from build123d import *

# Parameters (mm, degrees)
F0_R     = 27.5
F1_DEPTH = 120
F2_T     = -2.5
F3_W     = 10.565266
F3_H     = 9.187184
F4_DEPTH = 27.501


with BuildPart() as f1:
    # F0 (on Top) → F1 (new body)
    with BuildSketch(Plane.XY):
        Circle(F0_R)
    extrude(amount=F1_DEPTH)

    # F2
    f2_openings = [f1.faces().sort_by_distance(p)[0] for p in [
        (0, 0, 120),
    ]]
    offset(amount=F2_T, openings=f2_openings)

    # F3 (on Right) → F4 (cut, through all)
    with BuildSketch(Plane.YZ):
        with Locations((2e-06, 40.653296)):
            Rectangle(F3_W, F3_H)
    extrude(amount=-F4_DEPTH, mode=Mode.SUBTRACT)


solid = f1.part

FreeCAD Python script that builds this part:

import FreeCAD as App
import Part
import Sketcher

V = App.Vector


def faces_at(feature, points):
    """Names of the faces that lie closest to the given points."""
    faces = feature.Shape.Faces
    near = lambda p: min(range(len(faces)), key=lambda i: faces[i].distToShape(Part.Vertex(*p))[0])
    return sorted({f"Face{near(p) + 1}" for p in points})


def add_polygon(sketch, points):
    """Adds a closed chain of lines whose ends are joined by coincident constraints."""
    first, n = sketch.GeometryCount, len(points)
    for a, b in zip(points, points[1:] + points[:1]):
        sketch.addGeometry(Part.LineSegment(App.Vector(*a, 0), App.Vector(*b, 0)), False)
    for i in range(n):
        sketch.addConstraint(Sketcher.Constraint("Coincident", first + i, 2, first + (i + 1) % n, 1))

doc = App.newDocument("Part")
body = doc.addObject("PartDesign::Body", "Body")

# Sketch on XY plane
sketch1 = body.newObject("Sketcher::SketchObject", "Sketch")
sketch1.AttachmentSupport = (doc.getObject("XY_Plane"), [""])
sketch1.MapMode = "FlatFace"
sketch1.addGeometry(Part.Circle(V(0, 0, 0), V(0, 0, 1), 28), False)
sketch1.addConstraint([
    Sketcher.Constraint("Coincident", 0, 3, -1, 1),
    Sketcher.Constraint("Diameter", 0, 55.0),
])
pad1 = body.newObject("PartDesign::Pad", "Pad")
pad1.Profile = sketch1
pad1.Length = 120
doc.recompute()

thickness = body.newObject("PartDesign::Thickness", "Thickness")
thickness.Base = (pad1, faces_at(pad1, [(0, 0, 120)]))
thickness.Value = 2.5
thickness.Reversed = True
thickness.Join = "Arc"

# Sketch on YZ plane
sketch2 = body.newObject("Sketcher::SketchObject", "Sketch001")
sketch2.AttachmentSupport = (doc.getObject("YZ_Plane"), [""])
sketch2.MapMode = "FlatFace"
add_polygon(sketch2, [(-5, 45), (-5, 36), (5, 36), (5, 45)])  # lines 0-3
sketch2.addConstraint([
    Sketcher.Constraint("Vertical", 0),
    Sketcher.Constraint("Horizontal", 1),
    Sketcher.Constraint("Vertical", 2),
    Sketcher.Constraint("Horizontal", 3),
    Sketcher.Constraint("DistanceX", 1, 1, 1, 2, 10.565266),
    Sketcher.Constraint("DistanceY", 0, 2, 0, 1, 9.187184),
    Sketcher.Constraint("DistanceX", 0, 2, -1, 1, 5.282631),
    Sketcher.Constraint("DistanceY", -1, 1, 0, 2, 36.059704),
])
pocket1 = body.newObject("PartDesign::Pocket", "Pocket")
pocket1.Profile = sketch2
pocket1.Type = "ThroughAll"

doc.recompute()
